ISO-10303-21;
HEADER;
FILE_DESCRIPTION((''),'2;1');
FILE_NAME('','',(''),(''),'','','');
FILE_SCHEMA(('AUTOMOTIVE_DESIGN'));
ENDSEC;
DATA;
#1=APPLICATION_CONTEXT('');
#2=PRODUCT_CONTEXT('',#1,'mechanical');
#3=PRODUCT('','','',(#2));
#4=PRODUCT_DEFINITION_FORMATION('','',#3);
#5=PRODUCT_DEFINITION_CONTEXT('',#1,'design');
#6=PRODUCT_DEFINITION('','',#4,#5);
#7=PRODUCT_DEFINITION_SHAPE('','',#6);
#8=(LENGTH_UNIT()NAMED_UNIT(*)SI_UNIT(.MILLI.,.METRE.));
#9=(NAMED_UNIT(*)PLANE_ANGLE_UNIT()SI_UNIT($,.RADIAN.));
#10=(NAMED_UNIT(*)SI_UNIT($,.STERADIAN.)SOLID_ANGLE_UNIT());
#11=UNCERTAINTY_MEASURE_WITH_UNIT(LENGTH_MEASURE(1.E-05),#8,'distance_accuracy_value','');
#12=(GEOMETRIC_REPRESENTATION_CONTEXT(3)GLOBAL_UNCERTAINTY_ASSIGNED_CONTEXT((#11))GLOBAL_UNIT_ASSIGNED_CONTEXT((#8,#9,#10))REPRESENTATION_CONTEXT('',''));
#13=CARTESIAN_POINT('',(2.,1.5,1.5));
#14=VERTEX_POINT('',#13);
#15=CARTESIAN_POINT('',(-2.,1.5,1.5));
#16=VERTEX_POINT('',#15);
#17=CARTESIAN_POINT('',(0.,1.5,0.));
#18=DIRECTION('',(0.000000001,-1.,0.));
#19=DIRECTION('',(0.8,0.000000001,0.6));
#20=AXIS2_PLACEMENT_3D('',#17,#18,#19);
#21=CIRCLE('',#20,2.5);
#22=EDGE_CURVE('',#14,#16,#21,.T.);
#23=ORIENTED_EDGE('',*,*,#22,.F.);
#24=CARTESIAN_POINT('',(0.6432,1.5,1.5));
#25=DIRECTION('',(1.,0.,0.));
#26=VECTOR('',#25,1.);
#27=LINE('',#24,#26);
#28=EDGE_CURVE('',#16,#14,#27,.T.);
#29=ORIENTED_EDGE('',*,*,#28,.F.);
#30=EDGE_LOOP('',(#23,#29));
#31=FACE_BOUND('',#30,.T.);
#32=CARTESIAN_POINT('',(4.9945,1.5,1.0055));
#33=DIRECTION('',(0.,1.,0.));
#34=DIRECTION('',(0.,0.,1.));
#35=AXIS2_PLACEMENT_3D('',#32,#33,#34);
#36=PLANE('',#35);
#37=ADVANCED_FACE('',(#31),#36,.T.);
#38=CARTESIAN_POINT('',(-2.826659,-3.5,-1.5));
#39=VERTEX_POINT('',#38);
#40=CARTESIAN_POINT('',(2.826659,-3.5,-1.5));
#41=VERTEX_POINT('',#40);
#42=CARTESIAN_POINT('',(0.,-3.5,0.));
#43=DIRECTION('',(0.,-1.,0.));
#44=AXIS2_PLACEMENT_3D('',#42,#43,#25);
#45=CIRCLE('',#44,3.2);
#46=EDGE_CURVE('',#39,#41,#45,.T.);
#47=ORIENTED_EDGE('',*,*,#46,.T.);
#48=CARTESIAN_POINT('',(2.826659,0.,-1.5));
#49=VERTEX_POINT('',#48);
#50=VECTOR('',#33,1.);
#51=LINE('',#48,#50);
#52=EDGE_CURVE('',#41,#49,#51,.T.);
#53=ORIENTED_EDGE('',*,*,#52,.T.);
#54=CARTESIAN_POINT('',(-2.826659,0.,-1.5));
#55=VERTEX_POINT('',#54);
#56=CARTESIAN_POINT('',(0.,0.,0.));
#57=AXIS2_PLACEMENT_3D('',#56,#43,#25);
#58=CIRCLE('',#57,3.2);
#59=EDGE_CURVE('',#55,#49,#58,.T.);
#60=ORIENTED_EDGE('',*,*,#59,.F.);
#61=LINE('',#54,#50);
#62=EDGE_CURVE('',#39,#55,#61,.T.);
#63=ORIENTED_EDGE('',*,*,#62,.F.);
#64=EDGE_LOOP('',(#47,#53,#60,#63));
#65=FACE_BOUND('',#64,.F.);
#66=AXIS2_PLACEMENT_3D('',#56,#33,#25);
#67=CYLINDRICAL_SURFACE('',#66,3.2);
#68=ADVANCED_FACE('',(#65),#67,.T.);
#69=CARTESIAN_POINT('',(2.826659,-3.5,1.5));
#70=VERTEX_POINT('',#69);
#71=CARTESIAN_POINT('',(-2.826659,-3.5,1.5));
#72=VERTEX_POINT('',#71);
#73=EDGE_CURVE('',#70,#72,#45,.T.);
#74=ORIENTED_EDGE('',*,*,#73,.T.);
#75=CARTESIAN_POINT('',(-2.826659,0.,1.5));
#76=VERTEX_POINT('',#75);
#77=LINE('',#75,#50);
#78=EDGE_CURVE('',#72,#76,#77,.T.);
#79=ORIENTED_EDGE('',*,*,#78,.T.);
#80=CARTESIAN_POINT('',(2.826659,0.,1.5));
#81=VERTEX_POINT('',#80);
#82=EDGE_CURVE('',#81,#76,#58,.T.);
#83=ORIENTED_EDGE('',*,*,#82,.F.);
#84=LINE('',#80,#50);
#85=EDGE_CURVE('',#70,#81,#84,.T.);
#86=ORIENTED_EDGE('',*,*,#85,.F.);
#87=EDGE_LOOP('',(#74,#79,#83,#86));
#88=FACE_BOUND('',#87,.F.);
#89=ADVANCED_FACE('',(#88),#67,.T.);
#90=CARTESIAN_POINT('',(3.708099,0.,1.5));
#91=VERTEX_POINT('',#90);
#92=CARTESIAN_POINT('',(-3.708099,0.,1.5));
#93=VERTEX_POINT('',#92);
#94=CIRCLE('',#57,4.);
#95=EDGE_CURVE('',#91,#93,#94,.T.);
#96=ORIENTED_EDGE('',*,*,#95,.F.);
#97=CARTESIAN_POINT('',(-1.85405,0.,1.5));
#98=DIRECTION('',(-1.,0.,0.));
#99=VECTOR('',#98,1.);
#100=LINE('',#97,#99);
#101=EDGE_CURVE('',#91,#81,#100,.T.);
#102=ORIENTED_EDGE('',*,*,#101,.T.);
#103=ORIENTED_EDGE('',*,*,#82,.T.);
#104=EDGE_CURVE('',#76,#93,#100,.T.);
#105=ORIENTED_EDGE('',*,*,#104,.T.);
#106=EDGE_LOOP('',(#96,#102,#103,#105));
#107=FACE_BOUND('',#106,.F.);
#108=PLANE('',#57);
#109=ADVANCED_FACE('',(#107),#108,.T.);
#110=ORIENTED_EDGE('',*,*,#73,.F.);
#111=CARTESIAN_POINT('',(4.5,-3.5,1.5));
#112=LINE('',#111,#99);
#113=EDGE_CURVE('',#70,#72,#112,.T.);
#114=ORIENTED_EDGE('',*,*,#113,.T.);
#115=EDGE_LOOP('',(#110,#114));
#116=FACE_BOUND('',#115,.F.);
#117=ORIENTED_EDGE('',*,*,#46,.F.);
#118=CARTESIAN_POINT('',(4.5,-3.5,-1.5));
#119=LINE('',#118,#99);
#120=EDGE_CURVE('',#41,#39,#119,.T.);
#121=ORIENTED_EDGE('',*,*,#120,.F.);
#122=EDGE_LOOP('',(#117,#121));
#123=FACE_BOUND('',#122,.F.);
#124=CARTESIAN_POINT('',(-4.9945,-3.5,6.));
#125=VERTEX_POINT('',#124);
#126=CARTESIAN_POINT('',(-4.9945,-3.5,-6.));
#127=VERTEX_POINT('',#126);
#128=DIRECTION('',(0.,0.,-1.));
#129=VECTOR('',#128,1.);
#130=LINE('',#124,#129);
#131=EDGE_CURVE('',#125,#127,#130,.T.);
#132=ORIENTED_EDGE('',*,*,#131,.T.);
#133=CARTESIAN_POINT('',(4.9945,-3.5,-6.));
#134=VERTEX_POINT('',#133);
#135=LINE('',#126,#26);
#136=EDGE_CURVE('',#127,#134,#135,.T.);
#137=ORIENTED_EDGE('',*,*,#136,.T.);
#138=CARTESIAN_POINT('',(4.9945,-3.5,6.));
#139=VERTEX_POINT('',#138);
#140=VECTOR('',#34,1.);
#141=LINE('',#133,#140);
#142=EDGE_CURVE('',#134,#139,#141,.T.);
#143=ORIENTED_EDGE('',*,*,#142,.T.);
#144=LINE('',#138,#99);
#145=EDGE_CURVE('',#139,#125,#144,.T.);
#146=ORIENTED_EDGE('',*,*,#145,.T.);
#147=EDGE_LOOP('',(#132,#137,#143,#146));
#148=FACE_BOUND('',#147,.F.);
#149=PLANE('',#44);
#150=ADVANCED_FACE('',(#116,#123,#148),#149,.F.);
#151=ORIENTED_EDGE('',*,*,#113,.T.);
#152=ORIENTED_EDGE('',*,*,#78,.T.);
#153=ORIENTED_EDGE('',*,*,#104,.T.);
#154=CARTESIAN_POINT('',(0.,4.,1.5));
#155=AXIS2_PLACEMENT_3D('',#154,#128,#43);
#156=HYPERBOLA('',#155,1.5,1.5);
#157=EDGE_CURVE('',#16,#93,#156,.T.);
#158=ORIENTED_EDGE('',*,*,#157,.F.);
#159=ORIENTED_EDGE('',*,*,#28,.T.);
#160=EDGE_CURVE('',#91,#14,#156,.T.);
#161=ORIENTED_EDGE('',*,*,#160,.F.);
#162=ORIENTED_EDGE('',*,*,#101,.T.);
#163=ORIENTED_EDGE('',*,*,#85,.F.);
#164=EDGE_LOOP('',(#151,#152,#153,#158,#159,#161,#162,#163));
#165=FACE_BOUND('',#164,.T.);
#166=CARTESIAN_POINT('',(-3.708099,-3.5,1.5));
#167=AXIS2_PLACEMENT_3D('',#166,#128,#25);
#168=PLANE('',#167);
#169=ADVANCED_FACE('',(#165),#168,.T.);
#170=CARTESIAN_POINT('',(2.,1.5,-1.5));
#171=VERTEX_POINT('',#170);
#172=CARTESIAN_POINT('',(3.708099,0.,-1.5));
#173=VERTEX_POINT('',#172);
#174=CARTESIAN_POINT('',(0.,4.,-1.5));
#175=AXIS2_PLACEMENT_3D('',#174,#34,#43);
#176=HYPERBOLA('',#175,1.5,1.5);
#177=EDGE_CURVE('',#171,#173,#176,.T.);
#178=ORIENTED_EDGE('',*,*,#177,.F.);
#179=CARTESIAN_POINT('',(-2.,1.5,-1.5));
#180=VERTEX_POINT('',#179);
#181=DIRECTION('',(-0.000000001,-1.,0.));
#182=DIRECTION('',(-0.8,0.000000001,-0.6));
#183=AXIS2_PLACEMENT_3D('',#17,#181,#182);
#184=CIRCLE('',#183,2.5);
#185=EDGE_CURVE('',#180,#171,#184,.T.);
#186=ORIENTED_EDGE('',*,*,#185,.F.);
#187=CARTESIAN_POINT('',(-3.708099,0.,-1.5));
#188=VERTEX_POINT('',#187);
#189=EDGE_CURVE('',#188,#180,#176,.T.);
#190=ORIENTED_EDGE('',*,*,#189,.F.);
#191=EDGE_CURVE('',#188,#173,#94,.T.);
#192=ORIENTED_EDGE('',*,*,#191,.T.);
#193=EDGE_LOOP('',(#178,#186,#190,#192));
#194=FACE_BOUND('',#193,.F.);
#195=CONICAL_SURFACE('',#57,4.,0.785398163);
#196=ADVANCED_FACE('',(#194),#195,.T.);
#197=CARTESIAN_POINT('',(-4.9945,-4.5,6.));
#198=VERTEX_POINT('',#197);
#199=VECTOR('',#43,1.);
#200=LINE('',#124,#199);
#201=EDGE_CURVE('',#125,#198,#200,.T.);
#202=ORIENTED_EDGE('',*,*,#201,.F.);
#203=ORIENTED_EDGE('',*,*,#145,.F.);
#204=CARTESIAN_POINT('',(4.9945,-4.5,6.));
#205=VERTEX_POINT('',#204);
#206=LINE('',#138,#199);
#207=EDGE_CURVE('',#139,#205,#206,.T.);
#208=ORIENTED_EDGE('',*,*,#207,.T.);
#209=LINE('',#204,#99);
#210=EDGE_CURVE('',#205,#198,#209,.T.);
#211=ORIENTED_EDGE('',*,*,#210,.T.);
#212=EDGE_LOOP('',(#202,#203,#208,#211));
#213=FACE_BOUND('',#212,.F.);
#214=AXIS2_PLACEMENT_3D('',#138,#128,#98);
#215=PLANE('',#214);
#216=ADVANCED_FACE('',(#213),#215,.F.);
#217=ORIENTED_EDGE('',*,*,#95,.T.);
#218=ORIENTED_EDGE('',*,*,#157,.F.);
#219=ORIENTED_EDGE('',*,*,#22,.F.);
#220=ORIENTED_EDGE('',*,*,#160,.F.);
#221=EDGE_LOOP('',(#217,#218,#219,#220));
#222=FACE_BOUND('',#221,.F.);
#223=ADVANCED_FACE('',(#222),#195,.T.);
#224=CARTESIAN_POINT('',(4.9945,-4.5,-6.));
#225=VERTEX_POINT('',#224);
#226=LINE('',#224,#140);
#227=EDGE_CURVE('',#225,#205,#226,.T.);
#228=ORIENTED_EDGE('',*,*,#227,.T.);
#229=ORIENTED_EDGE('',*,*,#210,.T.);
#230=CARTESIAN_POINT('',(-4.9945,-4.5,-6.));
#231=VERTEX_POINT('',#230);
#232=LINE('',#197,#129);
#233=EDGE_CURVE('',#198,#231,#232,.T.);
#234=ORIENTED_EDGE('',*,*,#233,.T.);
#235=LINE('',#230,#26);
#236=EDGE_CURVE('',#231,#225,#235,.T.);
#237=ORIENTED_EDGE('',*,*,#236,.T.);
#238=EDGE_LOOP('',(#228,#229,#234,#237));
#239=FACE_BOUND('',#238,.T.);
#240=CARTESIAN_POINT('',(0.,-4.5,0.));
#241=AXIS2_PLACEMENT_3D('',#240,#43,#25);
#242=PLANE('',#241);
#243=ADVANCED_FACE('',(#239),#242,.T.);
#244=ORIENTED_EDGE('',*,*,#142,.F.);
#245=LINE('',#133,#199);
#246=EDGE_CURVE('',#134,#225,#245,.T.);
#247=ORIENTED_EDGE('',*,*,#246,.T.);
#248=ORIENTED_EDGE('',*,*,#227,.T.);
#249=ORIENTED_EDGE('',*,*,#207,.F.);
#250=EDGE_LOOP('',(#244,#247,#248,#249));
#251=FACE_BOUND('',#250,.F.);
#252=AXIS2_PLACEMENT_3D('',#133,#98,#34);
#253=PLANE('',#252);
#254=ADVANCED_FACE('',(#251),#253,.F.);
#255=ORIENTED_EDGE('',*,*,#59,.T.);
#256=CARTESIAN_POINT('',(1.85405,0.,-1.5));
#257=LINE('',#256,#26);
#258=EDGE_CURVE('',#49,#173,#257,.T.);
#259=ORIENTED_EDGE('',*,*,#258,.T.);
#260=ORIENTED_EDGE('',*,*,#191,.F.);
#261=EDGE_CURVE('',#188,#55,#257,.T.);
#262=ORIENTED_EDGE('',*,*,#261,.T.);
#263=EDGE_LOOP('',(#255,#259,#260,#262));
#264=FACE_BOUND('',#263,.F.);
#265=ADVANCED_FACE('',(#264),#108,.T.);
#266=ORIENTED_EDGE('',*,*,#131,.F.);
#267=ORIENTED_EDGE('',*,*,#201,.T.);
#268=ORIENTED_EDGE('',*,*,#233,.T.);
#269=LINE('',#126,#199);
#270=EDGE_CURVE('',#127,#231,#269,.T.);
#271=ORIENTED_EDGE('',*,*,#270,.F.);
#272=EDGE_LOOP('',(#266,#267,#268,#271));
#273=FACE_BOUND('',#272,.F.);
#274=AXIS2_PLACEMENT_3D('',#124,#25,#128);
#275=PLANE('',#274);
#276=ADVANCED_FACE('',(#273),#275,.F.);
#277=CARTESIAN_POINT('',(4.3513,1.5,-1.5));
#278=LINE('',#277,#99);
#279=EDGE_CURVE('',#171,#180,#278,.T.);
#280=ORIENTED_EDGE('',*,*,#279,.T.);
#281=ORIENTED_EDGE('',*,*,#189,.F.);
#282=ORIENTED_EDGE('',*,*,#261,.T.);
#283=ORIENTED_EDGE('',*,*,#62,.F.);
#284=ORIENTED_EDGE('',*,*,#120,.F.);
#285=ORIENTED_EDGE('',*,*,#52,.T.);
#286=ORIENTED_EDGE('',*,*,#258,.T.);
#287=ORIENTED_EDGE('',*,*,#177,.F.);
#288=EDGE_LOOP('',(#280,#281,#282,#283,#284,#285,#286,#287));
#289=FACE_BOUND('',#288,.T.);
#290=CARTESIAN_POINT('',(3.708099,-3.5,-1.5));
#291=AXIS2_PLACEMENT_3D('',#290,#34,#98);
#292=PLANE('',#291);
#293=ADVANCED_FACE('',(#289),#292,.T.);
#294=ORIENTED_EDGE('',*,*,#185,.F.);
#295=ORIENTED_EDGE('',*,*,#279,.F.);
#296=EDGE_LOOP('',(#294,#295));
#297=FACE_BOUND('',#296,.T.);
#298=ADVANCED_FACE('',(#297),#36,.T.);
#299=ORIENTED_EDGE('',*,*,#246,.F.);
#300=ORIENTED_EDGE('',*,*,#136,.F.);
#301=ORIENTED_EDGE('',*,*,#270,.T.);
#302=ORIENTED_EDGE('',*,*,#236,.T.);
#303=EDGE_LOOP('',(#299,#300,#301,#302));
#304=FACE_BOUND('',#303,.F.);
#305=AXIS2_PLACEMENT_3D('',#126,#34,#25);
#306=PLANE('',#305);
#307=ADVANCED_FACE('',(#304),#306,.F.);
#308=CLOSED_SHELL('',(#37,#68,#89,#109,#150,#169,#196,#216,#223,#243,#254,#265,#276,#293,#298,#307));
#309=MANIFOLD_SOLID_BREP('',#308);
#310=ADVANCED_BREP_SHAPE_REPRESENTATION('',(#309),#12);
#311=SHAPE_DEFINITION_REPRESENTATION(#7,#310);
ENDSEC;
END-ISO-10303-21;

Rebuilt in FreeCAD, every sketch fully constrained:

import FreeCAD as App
import Part
import Sketcher

V = App.Vector
Q = App.Units.Quantity


def add_polygon(sketch, points):
    """Adds a closed chain of lines whose ends are joined by coincident constraints."""
    first, n = sketch.GeometryCount, len(points)
    for a, b in zip(points, points[1:] + points[:1]):
        sketch.addGeometry(Part.LineSegment(App.Vector(*a, 0), App.Vector(*b, 0)), False)
    for i in range(n):
        sketch.addConstraint(Sketcher.Constraint("Coincident", first + i, 2, first + (i + 1) % n, 1))

doc = App.newDocument("Part")
body = doc.addObject("PartDesign::Body", "Body")
body.AllowCompound = True

# Sketch on XY plane
sketch1 = doc.addObject("Sketcher::SketchObject", "Sketch")
body.addObject(sketch1)
sketch1.AttachmentSupport = (doc.XY_Plane, [""])
sketch1.MapMode = "FlatFace"
add_polygon(sketch1, [(4, 0), (0, 4), (0, 0)])  # lines 0-2
sketch1.addConstraint([
    Sketcher.Constraint("Vertical", 1),
    Sketcher.Constraint("Horizontal", 2),
    Sketcher.Constraint("Coincident", 1, 2, -1, 1),
    Sketcher.Constraint("Equal", 2, 1),
    Sketcher.Constraint("DistanceX", 2, 1, 2, 2, Q("4 mm")),
])
revolution = doc.addObject("PartDesign::Revolution", "Revolution")
body.addObject(revolution)
revolution.Profile = sketch1
revolution.ReferenceAxis = (sketch1, ["V_Axis"])
revolution.Angle = 360

# Sketch on XZ plane
sketch2 = doc.addObject("Sketcher::SketchObject", "Sketch001")
body.addObject(sketch2)
sketch2.AttachmentSupport = (doc.XZ_Plane, [""])
sketch2.MapMode = "FlatFace"
sketch2.addGeometry(Part.Circle(V(0, 0, 0), V(0, 0, 1), 3.2), False)
sketch2.addConstraint([
    Sketcher.Constraint("Coincident", 0, 3, -1, 1),
    Sketcher.Constraint("Diameter", 0, Q("6.4 mm")),
])
pad1 = doc.addObject("PartDesign::Pad", "Pad")
body.addObject(pad1)
pad1.Profile = sketch2
pad1.Length = 3.5

# Sketch on XZ plane
sketch3 = doc.addObject("Sketcher::SketchObject", "Sketch002")
body.addObject(sketch3)
sketch3.AttachmentSupport = (doc.XZ_Plane, [""])
sketch3.MapMode = "FlatFace"
sketch3.AttachmentOffset = App.Placement(V(0, 0, 3.5), App.Rotation())
add_polygon(sketch3, [(4.5, -1.5), (4.5, 1.5), (-4.5, 1.5), (-4.5, -1.5)])  # lines 0-3
sketch3.addConstraint([
    Sketcher.Constraint("Vertical", 0),
    Sketcher.Constraint("Horizontal", 1),
    Sketcher.Constraint("Vertical", 2),
    Sketcher.Constraint("Horizontal", 3),
    Sketcher.Constraint("Symmetric", 0, 2, 2, 2, -1, 1),
    Sketcher.Constraint("DistanceY", 0, 1, 0, 2, Q("3 mm")),
    Sketcher.Constraint("DistanceX", 1, 2, 1, 1, Q("9 mm")),
])
pocket1 = doc.addObject("PartDesign::Pocket", "Pocket")
body.addObject(pocket1)
pocket1.Profile = sketch3
pocket1.Type = "ThroughAll"

# Sketch on XZ plane
sketch4 = doc.addObject("Sketcher::SketchObject", "Sketch003")
body.addObject(sketch4)
sketch4.AttachmentSupport = (doc.XZ_Plane, [""])
sketch4.MapMode = "FlatFace"
sketch4.AttachmentOffset = App.Placement(V(0, 0, 3.5), App.Rotation())
add_polygon(sketch4, [(5, -6), (5, 6), (-5, 6), (-5, -6)])  # lines 0-3
sketch4.addConstraint([
    Sketcher.Constraint("Vertical", 0),
    Sketcher.Constraint("Horizontal", 1),
    Sketcher.Constraint("Vertical", 2),
    Sketcher.Constraint("Horizontal", 3),
    Sketcher.Constraint("Symmetric", 0, 2, 2, 2, -1, 1),
    Sketcher.Constraint("DistanceY", 0, 1, 0, 2, Q("12 mm")),
    Sketcher.Constraint("DistanceX", 1, 2, 1, 1, Q("9.989 mm")),
])
pad2 = doc.addObject("PartDesign::Pad", "Pad001")
body.addObject(pad2)
pad2.Profile = sketch4
pad2.Length = 1

# Sketch on YZ plane
sketch5 = doc.addObject("Sketcher::SketchObject", "Sketch004")
body.addObject(sketch5)
sketch5.AttachmentSupport = (doc.YZ_Plane, [""])
sketch5.MapMode = "FlatFace"
sketch5.AttachmentOffset = App.Placement(V(0, 0, 4.9945), App.Rotation())
add_polygon(sketch5, [(2.5, 2.5), (1.5, 2.5), (1.5, -2.5), (2.5, -2.5)])  # lines 0-3
sketch5.addConstraint([
    Sketcher.Constraint("Horizontal", 0),
    Sketcher.Constraint("Vertical", 1),
    Sketcher.Constraint("Horizontal", 2),
    Sketcher.Constraint("Vertical", 3),
    Sketcher.Constraint("DistanceX", 0, 2, 0, 1, Q("1 mm")),
    Sketcher.Constraint("DistanceY", 1, 2, 1, 1, Q("5 mm")),
    Sketcher.Constraint("DistanceX", -1, 1, 0, 2, Q("1.5 mm")),
    Sketcher.Constraint("DistanceY", -1, 1, 0, 2, Q("2.5 mm")),
])
pocket2 = doc.addObject("PartDesign::Pocket", "Pocket001")
body.addObject(pocket2)
pocket2.Profile = sketch5
pocket2.Type = "ThroughAll"

doc.recompute()
